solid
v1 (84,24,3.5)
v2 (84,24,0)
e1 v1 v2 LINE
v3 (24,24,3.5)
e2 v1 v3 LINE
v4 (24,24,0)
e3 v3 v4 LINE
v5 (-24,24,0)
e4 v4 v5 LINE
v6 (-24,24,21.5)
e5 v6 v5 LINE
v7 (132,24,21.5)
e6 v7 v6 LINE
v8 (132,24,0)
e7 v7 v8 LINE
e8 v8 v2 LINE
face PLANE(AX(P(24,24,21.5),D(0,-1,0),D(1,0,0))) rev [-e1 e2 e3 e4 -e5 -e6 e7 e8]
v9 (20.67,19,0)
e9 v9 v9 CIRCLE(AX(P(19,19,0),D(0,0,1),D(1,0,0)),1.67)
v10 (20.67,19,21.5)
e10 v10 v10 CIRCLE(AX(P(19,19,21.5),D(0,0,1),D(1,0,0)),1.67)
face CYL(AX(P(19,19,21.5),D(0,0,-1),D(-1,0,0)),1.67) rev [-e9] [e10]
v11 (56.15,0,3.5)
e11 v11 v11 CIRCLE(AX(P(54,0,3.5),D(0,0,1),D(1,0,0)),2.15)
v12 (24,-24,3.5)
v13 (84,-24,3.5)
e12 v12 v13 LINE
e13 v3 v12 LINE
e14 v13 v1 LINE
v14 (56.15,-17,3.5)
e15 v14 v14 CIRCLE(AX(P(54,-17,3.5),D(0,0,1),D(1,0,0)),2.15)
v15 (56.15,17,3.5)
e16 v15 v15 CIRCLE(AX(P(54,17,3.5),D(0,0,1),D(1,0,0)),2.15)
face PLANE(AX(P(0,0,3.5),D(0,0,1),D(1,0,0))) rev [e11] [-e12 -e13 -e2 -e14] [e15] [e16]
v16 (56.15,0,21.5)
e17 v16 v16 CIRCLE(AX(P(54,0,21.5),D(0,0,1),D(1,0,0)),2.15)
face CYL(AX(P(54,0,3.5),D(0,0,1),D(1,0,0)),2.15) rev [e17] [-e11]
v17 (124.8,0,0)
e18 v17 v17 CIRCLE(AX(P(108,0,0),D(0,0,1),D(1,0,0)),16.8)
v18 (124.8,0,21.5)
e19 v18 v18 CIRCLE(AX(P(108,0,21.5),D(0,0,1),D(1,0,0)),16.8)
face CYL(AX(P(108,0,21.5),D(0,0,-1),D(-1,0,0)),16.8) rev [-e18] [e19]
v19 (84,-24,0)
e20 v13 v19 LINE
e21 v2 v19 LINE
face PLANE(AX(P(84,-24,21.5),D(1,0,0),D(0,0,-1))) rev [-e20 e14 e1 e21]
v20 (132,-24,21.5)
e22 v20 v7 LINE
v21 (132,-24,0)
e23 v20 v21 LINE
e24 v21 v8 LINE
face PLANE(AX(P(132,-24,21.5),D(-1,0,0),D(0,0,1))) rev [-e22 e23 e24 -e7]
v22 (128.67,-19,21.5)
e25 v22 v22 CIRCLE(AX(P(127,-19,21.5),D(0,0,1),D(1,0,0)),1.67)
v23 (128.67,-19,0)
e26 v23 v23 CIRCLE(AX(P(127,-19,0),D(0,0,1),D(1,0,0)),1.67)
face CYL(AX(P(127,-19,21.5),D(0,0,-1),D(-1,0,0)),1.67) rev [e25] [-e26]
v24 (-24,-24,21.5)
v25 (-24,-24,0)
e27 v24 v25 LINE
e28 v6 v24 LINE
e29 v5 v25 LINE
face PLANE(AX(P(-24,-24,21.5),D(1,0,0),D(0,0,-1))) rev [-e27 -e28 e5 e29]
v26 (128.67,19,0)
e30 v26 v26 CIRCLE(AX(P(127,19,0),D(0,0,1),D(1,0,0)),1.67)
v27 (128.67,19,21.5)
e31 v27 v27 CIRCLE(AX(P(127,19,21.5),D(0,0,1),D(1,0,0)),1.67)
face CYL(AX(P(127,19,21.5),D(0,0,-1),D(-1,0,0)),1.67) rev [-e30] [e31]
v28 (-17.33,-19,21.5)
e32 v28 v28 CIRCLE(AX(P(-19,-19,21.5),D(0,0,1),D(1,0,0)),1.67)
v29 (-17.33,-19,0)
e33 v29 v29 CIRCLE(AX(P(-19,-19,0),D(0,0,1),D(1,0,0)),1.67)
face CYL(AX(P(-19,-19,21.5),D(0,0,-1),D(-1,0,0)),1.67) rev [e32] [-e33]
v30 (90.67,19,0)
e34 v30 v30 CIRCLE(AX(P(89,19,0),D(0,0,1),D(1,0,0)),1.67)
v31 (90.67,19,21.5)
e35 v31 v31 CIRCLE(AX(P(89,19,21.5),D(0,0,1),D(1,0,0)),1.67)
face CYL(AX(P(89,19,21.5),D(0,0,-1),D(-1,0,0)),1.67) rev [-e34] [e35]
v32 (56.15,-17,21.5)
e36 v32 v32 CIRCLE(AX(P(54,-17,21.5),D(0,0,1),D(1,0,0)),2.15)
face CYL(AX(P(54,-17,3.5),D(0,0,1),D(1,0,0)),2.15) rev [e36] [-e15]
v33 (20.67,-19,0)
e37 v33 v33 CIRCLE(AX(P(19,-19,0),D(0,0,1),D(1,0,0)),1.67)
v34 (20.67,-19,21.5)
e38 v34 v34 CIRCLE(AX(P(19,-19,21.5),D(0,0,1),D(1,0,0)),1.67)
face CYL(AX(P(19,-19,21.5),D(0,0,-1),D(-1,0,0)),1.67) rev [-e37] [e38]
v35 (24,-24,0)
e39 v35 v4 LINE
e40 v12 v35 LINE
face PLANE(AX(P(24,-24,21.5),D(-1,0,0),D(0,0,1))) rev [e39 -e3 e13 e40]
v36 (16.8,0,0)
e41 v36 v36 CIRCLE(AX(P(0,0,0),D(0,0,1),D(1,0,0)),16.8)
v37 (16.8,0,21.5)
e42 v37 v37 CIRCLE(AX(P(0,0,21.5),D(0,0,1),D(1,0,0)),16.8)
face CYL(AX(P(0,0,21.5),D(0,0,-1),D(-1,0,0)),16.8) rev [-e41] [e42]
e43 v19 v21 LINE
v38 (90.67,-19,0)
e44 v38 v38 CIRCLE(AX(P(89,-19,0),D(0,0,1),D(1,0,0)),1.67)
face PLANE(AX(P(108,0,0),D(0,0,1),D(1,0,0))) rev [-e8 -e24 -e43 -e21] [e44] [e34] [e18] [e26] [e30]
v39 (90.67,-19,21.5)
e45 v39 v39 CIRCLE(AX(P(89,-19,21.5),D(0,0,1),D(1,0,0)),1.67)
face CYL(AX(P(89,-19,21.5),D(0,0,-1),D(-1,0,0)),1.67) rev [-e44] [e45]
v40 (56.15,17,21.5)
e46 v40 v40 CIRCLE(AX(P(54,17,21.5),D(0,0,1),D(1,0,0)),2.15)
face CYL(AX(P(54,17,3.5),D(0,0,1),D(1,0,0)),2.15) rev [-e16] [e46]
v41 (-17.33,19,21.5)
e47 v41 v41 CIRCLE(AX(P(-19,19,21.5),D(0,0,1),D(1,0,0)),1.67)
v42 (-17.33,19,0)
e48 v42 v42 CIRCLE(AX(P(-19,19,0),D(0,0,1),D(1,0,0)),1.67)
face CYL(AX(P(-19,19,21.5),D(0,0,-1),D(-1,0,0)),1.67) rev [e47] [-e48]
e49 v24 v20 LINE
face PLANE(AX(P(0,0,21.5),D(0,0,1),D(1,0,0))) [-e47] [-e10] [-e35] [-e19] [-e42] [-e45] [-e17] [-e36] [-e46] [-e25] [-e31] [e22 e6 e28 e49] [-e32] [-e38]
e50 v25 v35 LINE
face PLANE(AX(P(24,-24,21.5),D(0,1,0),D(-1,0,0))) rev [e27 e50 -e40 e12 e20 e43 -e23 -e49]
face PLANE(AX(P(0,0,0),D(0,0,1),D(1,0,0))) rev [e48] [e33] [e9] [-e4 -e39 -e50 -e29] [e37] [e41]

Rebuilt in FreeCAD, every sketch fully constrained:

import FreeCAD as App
import Part
import Sketcher

V = App.Vector
Q = App.Units.Quantity


def add_polygon(sketch, points):
    """Adds a closed chain of lines whose ends are joined by coincident constraints."""
    first, n = sketch.GeometryCount, len(points)
    for a, b in zip(points, points[1:] + points[:1]):
        sketch.addGeometry(Part.LineSegment(App.Vector(*a, 0), App.Vector(*b, 0)), False)
    for i in range(n):
        sketch.addConstraint(Sketcher.Constraint("Coincident", first + i, 2, first + (i + 1) % n, 1))

doc = App.newDocument("Part")
body = doc.addObject("PartDesign::Body", "Body")

sketch1 = body.newObject("Sketcher::SketchObject", "Sketch")
sketch1.AttachmentSupport = (doc.getObject("XY_Plane"), [""])
sketch1.MapMode = "FlatFace"
add_polygon(sketch1, [(-24, 24), (-24, -24), (24, -24), (24, 24)])
sketch1.addGeometry(Part.Circle(V(-19, -19, 0), V(0, 0, 1), 1.7), False)
sketch1.addGeometry(Part.Circle(V(19, -19, 0), V(0, 0, 1), 1.7), False)
sketch1.addGeometry(Part.Circle(V(-19, 19, 0), V(0, 0, 1), 1.7), False)
sketch1.addGeometry(Part.Circle(V(0, 0, 0), V(0, 0, 1), 16.8), False)
sketch1.addGeometry(Part.Circle(V(19, 19, 0), V(0, 0, 1), 1.7), False)
sketch1.addConstraint(Sketcher.Constraint("Vertical", 0))
sketch1.addConstraint(Sketcher.Constraint("Horizontal", 1))
sketch1.addConstraint(Sketcher.Constraint("Vertical", 2))
sketch1.addConstraint(Sketcher.Constraint("Horizontal", 3))
sketch1.addConstraint(Sketcher.Constraint("Coincident", 7, 3, -1, 1))
sketch1.addConstraint(Sketcher.Constraint("Equal", 4, 5))
sketch1.addConstraint(Sketcher.Constraint("Equal", 5, 6))
sketch1.addConstraint(Sketcher.Constraint("Equal", 6, 8))
sketch1.addConstraint(Sketcher.Constraint("Symmetric", 5, 3, 6, 3, -1, 1))
sketch1.addConstraint(Sketcher.Constraint("Symmetric", 4, 3, 8, 3, -1, 1))
sketch1.addConstraint(Sketcher.Constraint("Symmetric", 0, 2, 2, 2, -1, 1))
sketch1.addConstraint(Sketcher.Constraint("Symmetric", 4, 3, 5, 3, -2))
sketch1.addConstraint(Sketcher.Constraint("Equal", 3, 0))
sketch1.addConstraint(Sketcher.Constraint("Diameter", 7, Q("33.6 mm")))
sketch1.addConstraint(Sketcher.Constraint("Diameter", 4, Q("3.34 mm")))
sketch1.addConstraint(Sketcher.Constraint("DistanceX", 1, 1, 1, 2, Q("48 mm")))
sketch1.addConstraint(Sketcher.Constraint("DistanceX", 4, 3, -1, 1, Q("19 mm")))
sketch1.addConstraint(Sketcher.Constraint("DistanceY", 4, 3, -1, 1, Q("19 mm")))
pad1 = body.newObject("PartDesign::Pad", "Pad")
pad1.Profile = sketch1
pad1.Length = 21.5

sketch2 = body.newObject("Sketcher::SketchObject", "Sketch001")
sketch2.AttachmentSupport = (doc.getObject("XY_Plane"), [""])
sketch2.MapMode = "FlatFace"
sketch2.AttachmentOffset = App.Placement(V(0, 0, 21.5), App.Rotation())
add_polygon(sketch2, [(24, 24), (24, -24), (84, -24), (84, 24)])
sketch2.addGeometry(Part.Circle(V(54, -17, 0), V(0, 0, 1), 2.1), False)
sketch2.addGeometry(Part.Circle(V(54, 0, 0), V(0, 0, 1), 2.1), False)
sketch2.addGeometry(Part.Circle(V(54, 17, 0), V(0, 0, 1), 2.1), False)
sketch2.addConstraint(Sketcher.Constraint("Vertical", 0))
sketch2.addConstraint(Sketcher.Constraint("Horizontal", 1))
sketch2.addConstraint(Sketcher.Constraint("Vertical", 2))
sketch2.addConstraint(Sketcher.Constraint("Horizontal", 3))
sketch2.addConstraint(Sketcher.Constraint("Equal", 4, 5))
sketch2.addConstraint(Sketcher.Constraint("Equal", 5, 6))
sketch2.addConstraint(Sketcher.Constraint("Symmetric", 4, 3, 6, 3, -1))
sketch2.addConstraint(Sketcher.Constraint("PointOnObject", 5, 3, -1))
sketch2.addConstraint(Sketcher.Constraint("Vertical", 4, 3, 5, 3))
sketch2.addConstraint(Sketcher.Constraint("Diameter", 4, Q("4.3 mm")))
sketch2.addConstraint(Sketcher.Constraint("DistanceX", 1, 1, 1, 2, Q("60 mm")))
sketch2.addConstraint(Sketcher.Constraint("DistanceY", 0, 2, 0, 1, Q("48 mm")))
sketch2.addConstraint(Sketcher.Constraint("DistanceX", -1, 1, 4, 3, Q("54 mm")))
sketch2.addConstraint(Sketcher.Constraint("DistanceY", 4, 3, -1, 1, Q("17 mm")))
sketch2.addConstraint(Sketcher.Constraint("DistanceX", -1, 1, 0, 2, Q("24 mm")))
sketch2.addConstraint(Sketcher.Constraint("DistanceY", 0, 2, -1, 1, Q("24 mm")))
pad2 = body.newObject("PartDesign::Pad", "Pad001")
pad2.Profile = sketch2
pad2.Length = 18
pad2.Reversed = True
doc.recompute()

linearpattern = body.newObject("PartDesign::LinearPattern", "LinearPattern")
linearpattern.Originals = [pad1]
linearpattern.Direction = (doc.getObject("X_Axis"), [""])
linearpattern.Mode = "offset"
linearpattern.Offset = 108
linearpattern.Occurrences = 2
body.Tip = linearpattern

doc.recompute()
